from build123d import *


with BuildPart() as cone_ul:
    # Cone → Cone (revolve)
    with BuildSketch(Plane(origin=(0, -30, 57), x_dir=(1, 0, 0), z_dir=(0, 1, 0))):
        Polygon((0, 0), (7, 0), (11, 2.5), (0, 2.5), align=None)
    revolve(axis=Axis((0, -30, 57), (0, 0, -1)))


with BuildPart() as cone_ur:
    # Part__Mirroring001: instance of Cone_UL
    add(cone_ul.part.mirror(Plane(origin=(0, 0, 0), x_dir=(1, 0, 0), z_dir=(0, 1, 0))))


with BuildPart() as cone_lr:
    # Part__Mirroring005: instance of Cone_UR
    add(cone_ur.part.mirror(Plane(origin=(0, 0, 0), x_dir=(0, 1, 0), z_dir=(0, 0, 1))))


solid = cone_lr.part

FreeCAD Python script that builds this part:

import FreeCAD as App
import Part
import Sketcher
from FreeCAD import Vector
Q = App.Units.Quantity


def add_polygon(sketch, points):
    """Adds a closed chain of lines whose ends are joined by coincident constraints."""
    first, n = sketch.GeometryCount, len(points)
    for a, b in zip(points, points[1:] + points[:1]):
        sketch.addGeometry(Part.LineSegment(App.Vector(*a, 0), App.Vector(*b, 0)), False)
    for i in range(n):
        sketch.addConstraint(Sketcher.Constraint("Coincident", first + i, 2, first + (i + 1) % n, 1))

doc = App.newDocument("Part")
body = doc.addObject("PartDesign::Body", "Body")

sketch1 = body.newObject("Sketcher::SketchObject", "Sketch")
sketch1.AttachmentSupport = (doc.getObject("XZ_Plane"), [""])
sketch1.MapMode = "FlatFace"
sketch1.AttachmentOffset = App.Placement(Vector(0, 0, 30), App.Rotation())
add_polygon(sketch1, [(0, 57), (7, 57), (11, 54.5), (0, 54.5)])
sketch1.addConstraint([
    Sketcher.Constraint("Horizontal", 0),
    Sketcher.Constraint("Horizontal", 2),
    Sketcher.Constraint("Vertical", 3),
    Sketcher.Constraint("PointOnObject", 2, 2, -2),
    Sketcher.Constraint("DistanceX", 0, 1, 0, 2, Q("7 mm")),
    Sketcher.Constraint("DistanceX", 2, 2, 2, 1, Q("11 mm")),
    Sketcher.Constraint("DistanceY", 3, 1, 3, 2, Q("2.5 mm")),
    Sketcher.Constraint("DistanceY", -1, 1, 0, 2, Q("57 mm")),
])
revolution = body.newObject("PartDesign::Revolution", "Revolution")
revolution.Profile = sketch1
revolution.ReferenceAxis = (sketch1, ["V_Axis"])
revolution.Angle = 360
body2 = doc.addObject("PartDesign::Body", "Body001")
doc.recompute()

mirroring = doc.addObject("Part::Mirroring", "Mirroring")
mirroring.Source = body
mirroring.Base = Vector(0, 0, 0)
mirroring.Normal = Vector(0, 1, 0)
body2.BaseFeature = mirroring
doc.recompute()
body3 = doc.addObject("PartDesign::Body", "Body002")
doc.recompute()

mirroring2 = doc.addObject("Part::Mirroring", "Mirroring001")
mirroring2.Source = body2
mirroring2.Base = Vector(0, 0, 0)
mirroring2.Normal = Vector(0, 0, 1)
body3.BaseFeature = mirroring2
doc.recompute()
body.Visibility = False
body2.Visibility = False
mirroring.Visibility = False
mirroring2.Visibility = False

doc.recompute()
